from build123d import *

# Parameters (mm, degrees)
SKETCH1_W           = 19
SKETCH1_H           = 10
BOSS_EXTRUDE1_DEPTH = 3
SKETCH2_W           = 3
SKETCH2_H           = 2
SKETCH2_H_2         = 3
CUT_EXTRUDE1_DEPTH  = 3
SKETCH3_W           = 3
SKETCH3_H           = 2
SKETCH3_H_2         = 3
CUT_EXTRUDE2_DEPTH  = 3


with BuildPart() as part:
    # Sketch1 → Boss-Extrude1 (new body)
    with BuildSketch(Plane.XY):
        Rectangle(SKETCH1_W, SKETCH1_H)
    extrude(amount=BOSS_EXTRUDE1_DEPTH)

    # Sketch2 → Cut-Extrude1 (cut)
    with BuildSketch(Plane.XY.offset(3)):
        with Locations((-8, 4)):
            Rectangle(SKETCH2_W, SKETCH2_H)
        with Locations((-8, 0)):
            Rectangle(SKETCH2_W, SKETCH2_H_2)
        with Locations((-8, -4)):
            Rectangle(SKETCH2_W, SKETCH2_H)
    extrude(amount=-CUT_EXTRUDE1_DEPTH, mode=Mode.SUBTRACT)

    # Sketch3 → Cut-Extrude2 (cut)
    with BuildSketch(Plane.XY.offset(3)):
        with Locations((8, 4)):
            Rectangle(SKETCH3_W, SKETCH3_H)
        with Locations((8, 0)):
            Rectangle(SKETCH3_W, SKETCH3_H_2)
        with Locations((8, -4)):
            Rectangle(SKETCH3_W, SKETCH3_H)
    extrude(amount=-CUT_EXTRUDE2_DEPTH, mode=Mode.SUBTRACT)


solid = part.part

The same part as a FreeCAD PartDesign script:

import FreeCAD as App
import Part
import Sketcher

V = App.Vector


def add_polygon(sketch, points):
    """Adds a closed chain of lines whose ends are joined by coincident constraints."""
    first, n = sketch.GeometryCount, len(points)
    for a, b in zip(points, points[1:] + points[:1]):
        sketch.addGeometry(Part.LineSegment(App.Vector(*a, 0), App.Vector(*b, 0)), False)
    for i in range(n):
        sketch.addConstraint(Sketcher.Constraint("Coincident", first + i, 2, first + (i + 1) % n, 1))

doc = App.newDocument("Part")
body = doc.addObject("PartDesign::Body", "Body")

# Sketch on XY plane
sketch1 = body.newObject("Sketcher::SketchObject", "Sketch")
sketch1.AttachmentSupport = (doc.getObject("XY_Plane"), [""])
sketch1.MapMode = "FlatFace"
add_polygon(sketch1, [(-10, 5), (-10, -5), (10, -5), (10, 5)])  # lines 0-3
sketch1.addConstraint([
    Sketcher.Constraint("Vertical", 0),
    Sketcher.Constraint("Horizontal", 1),
    Sketcher.Constraint("Vertical", 2),
    Sketcher.Constraint("Horizontal", 3),
    Sketcher.Constraint("Symmetric", 0, 2, 2, 2, -1, 1),
    Sketcher.Constraint("DistanceX", 1, 1, 1, 2, 19.0),
    Sketcher.Constraint("DistanceY", 0, 2, 0, 1, 10.0),
])
pad1 = body.newObject("PartDesign::Pad", "Pad")
pad1.Profile = sketch1
pad1.Length = 3

# Sketch on XY plane
sketch2 = body.newObject("Sketcher::SketchObject", "Sketch001")
sketch2.AttachmentSupport = (doc.getObject("XY_Plane"), [""])
sketch2.MapMode = "FlatFace"
sketch2.AttachmentOffset = App.Placement(V(0, 0, 3), App.Rotation())
add_polygon(sketch2, [(-9.5, 5), (-9.5, 3), (-6.5, 3), (-6.5, 5)])  # lines 0-3
add_polygon(sketch2, [(-9.5, 1.5), (-9.5, -1.5), (-6.5, -1.5), (-6.5, 1.5)])  # lines 4-7
add_polygon(sketch2, [(-9.5, -3), (-9.5, -5), (-6.5, -5), (-6.5, -3)])  # lines 8-11
sketch2.addConstraint([
    Sketcher.Constraint("Vertical", 0),
    Sketcher.Constraint("Horizontal", 1),
    Sketcher.Constraint("Vertical", 2),
    Sketcher.Constraint("Horizontal", 3),
    Sketcher.Constraint("Vertical", 4),
    Sketcher.Constraint("Horizontal", 5),
    Sketcher.Constraint("Vertical", 6),
    Sketcher.Constraint("Horizontal", 7),
    Sketcher.Constraint("Vertical", 8),
    Sketcher.Constraint("Horizontal", 9),
    Sketcher.Constraint("Vertical", 10),
    Sketcher.Constraint("Horizontal", 11),
    Sketcher.Constraint("Symmetric", 3, 2, 8, 2, -1),
    Sketcher.Constraint("Symmetric", 1, 2, 10, 2, -1),
    Sketcher.Constraint("Vertical", 3, 2, 4, 2),
    Sketcher.Constraint("Vertical", 2, 2, 5, 2),
    Sketcher.Constraint("Equal", 11, 4),
    Sketcher.Constraint("DistanceX", 1, 1, 1, 2, 3.0),
    Sketcher.Constraint("DistanceY", 0, 2, 0, 1, 2.0),
    Sketcher.Constraint("DistanceY", -1, 1, 0, 2, 3.0),
    Sketcher.Constraint("DistanceX", 0, 2, -1, 1, 9.5),
    Sketcher.Constraint("DistanceY", 4, 2, -1, 1, 1.5),
])
pocket1 = body.newObject("PartDesign::Pocket", "Pocket")
pocket1.Profile = sketch2
pocket1.Length = 3

# Sketch on XY plane
sketch3 = body.newObject("Sketcher::SketchObject", "Sketch002")
sketch3.AttachmentSupport = (doc.getObject("XY_Plane"), [""])
sketch3.MapMode = "FlatFace"
sketch3.AttachmentOffset = App.Placement(V(0, 0, 3), App.Rotation())
add_polygon(sketch3, [(6.5, 5), (6.5, 3), (9.5, 3), (9.5, 5)])  # lines 0-3
add_polygon(sketch3, [(6.5, 1.5), (6.5, -1.5), (9.5, -1.5), (9.5, 1.5)])  # lines 4-7
add_polygon(sketch3, [(6.5, -3), (6.5, -5), (9.5, -5), (9.5, -3)])  # lines 8-11
sketch3.addConstraint([
    Sketcher.Constraint("Vertical", 0),
    Sketcher.Constraint("Horizontal", 1),
    Sketcher.Constraint("Vertical", 2),
    Sketcher.Constraint("Horizontal", 3),
    Sketcher.Constraint("Vertical", 4),
    Sketcher.Constraint("Horizontal", 5),
    Sketcher.Constraint("Vertical", 6),
    Sketcher.Constraint("Horizontal", 7),
    Sketcher.Constraint("Vertical", 8),
    Sketcher.Constraint("Horizontal", 9),
    Sketcher.Constraint("Vertical", 10),
    Sketcher.Constraint("Horizontal", 11),
    Sketcher.Constraint("Symmetric", 3, 2, 8, 2, -1),
    Sketcher.Constraint("Symmetric", 1, 2, 10, 2, -1),
    Sketcher.Constraint("Vertical", 3, 2, 4, 2),
    Sketcher.Constraint("Vertical", 2, 2, 5, 2),
    Sketcher.Constraint("Equal", 11, 4),
    Sketcher.Constraint("DistanceX", 1, 1, 1, 2, 3.0),
    Sketcher.Constraint("DistanceY", 0, 2, 0, 1, 2.0),
    Sketcher.Constraint("DistanceY", -1, 1, 0, 2, 3.0),
    Sketcher.Constraint("DistanceX", -1, 1, 0, 2, 6.5),
    Sketcher.Constraint("DistanceY", 4, 2, -1, 1, 1.5),
])
pocket2 = body.newObject("PartDesign::Pocket", "Pocket001")
pocket2.Profile = sketch3
pocket2.Length = 3

doc.recompute()
